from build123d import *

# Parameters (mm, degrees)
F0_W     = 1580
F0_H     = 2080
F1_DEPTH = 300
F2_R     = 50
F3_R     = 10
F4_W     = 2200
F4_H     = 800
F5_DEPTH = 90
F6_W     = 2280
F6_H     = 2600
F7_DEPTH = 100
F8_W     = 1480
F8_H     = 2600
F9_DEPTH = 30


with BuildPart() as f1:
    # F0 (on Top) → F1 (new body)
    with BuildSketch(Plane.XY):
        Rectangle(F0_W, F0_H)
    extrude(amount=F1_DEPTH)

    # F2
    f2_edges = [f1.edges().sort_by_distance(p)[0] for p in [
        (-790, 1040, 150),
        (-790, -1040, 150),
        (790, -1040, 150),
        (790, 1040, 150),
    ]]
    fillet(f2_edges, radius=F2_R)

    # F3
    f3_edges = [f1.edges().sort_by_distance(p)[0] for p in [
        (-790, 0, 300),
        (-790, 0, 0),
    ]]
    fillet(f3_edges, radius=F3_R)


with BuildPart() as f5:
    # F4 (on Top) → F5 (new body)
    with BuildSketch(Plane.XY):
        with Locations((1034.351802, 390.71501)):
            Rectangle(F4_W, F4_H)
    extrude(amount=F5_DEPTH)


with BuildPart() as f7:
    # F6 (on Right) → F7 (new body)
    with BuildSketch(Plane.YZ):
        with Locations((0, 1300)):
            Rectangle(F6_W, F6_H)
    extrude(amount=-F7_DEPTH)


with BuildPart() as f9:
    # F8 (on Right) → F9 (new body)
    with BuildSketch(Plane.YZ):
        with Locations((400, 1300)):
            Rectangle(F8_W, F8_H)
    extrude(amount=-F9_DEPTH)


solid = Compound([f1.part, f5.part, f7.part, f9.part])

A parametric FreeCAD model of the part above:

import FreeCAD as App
import Part
import Sketcher
from FreeCAD import Vector
Q = App.Units.Quantity


def edges_at(feature, points):
    """Names of the edges that pass closest to the given points."""
    edges = feature.Shape.Edges
    near = lambda p: min(range(len(edges)), key=lambda i: edges[i].distToShape(Part.Vertex(*p))[0])
    return sorted({f"Edge{near(p) + 1}" for p in points})


def add_polygon(sketch, points):
    """Adds a closed chain of lines whose ends are joined by coincident constraints."""
    first, n = sketch.GeometryCount, len(points)
    for a, b in zip(points, points[1:] + points[:1]):
        sketch.addGeometry(Part.LineSegment(App.Vector(*a, 0), App.Vector(*b, 0)), False)
    for i in range(n):
        sketch.addConstraint(Sketcher.Constraint("Coincident", first + i, 2, first + (i + 1) % n, 1))

doc = App.newDocument("Part")
body = doc.addObject("PartDesign::Body", "Body")

sketch1 = body.newObject("Sketcher::SketchObject", "Sketch")
sketch1.AttachmentSupport = (doc.getObject("XY_Plane"), [""])
sketch1.MapMode = "FlatFace"
add_polygon(sketch1, [(-790, 1040), (-790, -1040), (790, -1040), (790, 1040)])
sketch1.addConstraint(Sketcher.Constraint("Vertical", 0))
sketch1.addConstraint(Sketcher.Constraint("Horizontal", 1))
sketch1.addConstraint(Sketcher.Constraint("Vertical", 2))
sketch1.addConstraint(Sketcher.Constraint("Horizontal", 3))
sketch1.addConstraint(Sketcher.Constraint("Symmetric", 0, 2, 2, 2, -1, 1))
sketch1.addConstraint(Sketcher.Constraint("DistanceX", 1, 1, 1, 2, Q("1580 mm")))
sketch1.addConstraint(Sketcher.Constraint("DistanceY", 0, 2, 0, 1, Q("2080 mm")))
pad1 = body.newObject("PartDesign::Pad", "Pad")
pad1.Profile = sketch1
pad1.Length = 300
doc.recompute()

fillet = body.newObject("PartDesign::Fillet", "Fillet")
fillet.Base = (pad1, edges_at(pad1, [
    (-790, 1040, 150),
    (-790, -1040, 150),
    (790, -1040, 150),
    (790, 1040, 150),
]))
fillet.Radius = 50
doc.recompute()

fillet2 = body.newObject("PartDesign::Fillet", "Fillet001")
fillet2.Base = (fillet, edges_at(fillet, [(-790, 0, 300), (-790, 0, 0)]))
fillet2.Radius = 10
body2 = doc.addObject("PartDesign::Body", "Body001")

sketch2 = body2.newObject("Sketcher::SketchObject", "Sketch001")
sketch2.AttachmentSupport = (doc.getObject("XY_Plane001"), [""])
sketch2.MapMode = "FlatFace"
add_polygon(sketch2, [(-65.648198, 790.71501), (-65.648198, -9.28499), (2134.351802, -9.28499), (2134.351802, 790.71501)])
sketch2.addConstraint(Sketcher.Constraint("Vertical", 0))
sketch2.addConstraint(Sketcher.Constraint("Horizontal", 1))
sketch2.addConstraint(Sketcher.Constraint("Vertical", 2))
sketch2.addConstraint(Sketcher.Constraint("Horizontal", 3))
sketch2.addConstraint(Sketcher.Constraint("DistanceX", 1, 1, 1, 2, Q("2200 mm")))
sketch2.addConstraint(Sketcher.Constraint("DistanceY", 0, 2, 0, 1, Q("800 mm")))
sketch2.addConstraint(Sketcher.Constraint("DistanceY", 0, 2, -1, 1, Q("9.28499 mm")))
sketch2.addConstraint(Sketcher.Constraint("DistanceX", 0, 2, -1, 1, Q("65.648198 mm")))
pad2 = body2.newObject("PartDesign::Pad", "Pad001")
pad2.Profile = sketch2
pad2.Length = 90
body3 = doc.addObject("PartDesign::Body", "Body002")

sketch3 = body3.newObject("Sketcher::SketchObject", "Sketch002")
sketch3.AttachmentSupport = (doc.getObject("YZ_Plane002"), [""])
sketch3.MapMode = "FlatFace"
add_polygon(sketch3, [(-1140, 2600), (-1140, 0), (1140, 0), (1140, 2600)])
sketch3.addConstraint(Sketcher.Constraint("Vertical", 0))
sketch3.addConstraint(Sketcher.Constraint("Horizontal", 1))
sketch3.addConstraint(Sketcher.Constraint("Vertical", 2))
sketch3.addConstraint(Sketcher.Constraint("Horizontal", 3))
sketch3.addConstraint(Sketcher.Constraint("Symmetric", 0, 2, 1, 2, -1, 1))
sketch3.addConstraint(Sketcher.Constraint("DistanceX", 1, 1, 1, 2, Q("2280 mm")))
sketch3.addConstraint(Sketcher.Constraint("DistanceY", 0, 2, 0, 1, Q("2600 mm")))
pad3 = body3.newObject("PartDesign::Pad", "Pad002")
pad3.Profile = sketch3
pad3.Length = 100
pad3.Reversed = True
body4 = doc.addObject("PartDesign::Body", "Body003")

sketch4 = body4.newObject("Sketcher::SketchObject", "Sketch003")
sketch4.AttachmentSupport = (doc.getObject("YZ_Plane003"), [""])
sketch4.MapMode = "FlatFace"
add_polygon(sketch4, [(-340, 2600), (-340, 0), (1140, 0), (1140, 2600)])
sketch4.addConstraint(Sketcher.Constraint("Vertical", 0))
sketch4.addConstraint(Sketcher.Constraint("Horizontal", 1))
sketch4.addConstraint(Sketcher.Constraint("Vertical", 2))
sketch4.addConstraint(Sketcher.Constraint("Horizontal", 3))
sketch4.addConstraint(Sketcher.Constraint("PointOnObject", 0, 2, -1))
sketch4.addConstraint(Sketcher.Constraint("DistanceX", 1, 1, 1, 2, Q("1480 mm")))
sketch4.addConstraint(Sketcher.Constraint("DistanceY", 0, 2, 0, 1, Q("2600 mm")))
sketch4.addConstraint(Sketcher.Constraint("DistanceX", 0, 2, -1, 1, Q("340 mm")))
pad4 = body4.newObject("PartDesign::Pad", "Pad003")
pad4.Profile = sketch4
pad4.Length = 30
pad4.Reversed = True

doc.recompute()
